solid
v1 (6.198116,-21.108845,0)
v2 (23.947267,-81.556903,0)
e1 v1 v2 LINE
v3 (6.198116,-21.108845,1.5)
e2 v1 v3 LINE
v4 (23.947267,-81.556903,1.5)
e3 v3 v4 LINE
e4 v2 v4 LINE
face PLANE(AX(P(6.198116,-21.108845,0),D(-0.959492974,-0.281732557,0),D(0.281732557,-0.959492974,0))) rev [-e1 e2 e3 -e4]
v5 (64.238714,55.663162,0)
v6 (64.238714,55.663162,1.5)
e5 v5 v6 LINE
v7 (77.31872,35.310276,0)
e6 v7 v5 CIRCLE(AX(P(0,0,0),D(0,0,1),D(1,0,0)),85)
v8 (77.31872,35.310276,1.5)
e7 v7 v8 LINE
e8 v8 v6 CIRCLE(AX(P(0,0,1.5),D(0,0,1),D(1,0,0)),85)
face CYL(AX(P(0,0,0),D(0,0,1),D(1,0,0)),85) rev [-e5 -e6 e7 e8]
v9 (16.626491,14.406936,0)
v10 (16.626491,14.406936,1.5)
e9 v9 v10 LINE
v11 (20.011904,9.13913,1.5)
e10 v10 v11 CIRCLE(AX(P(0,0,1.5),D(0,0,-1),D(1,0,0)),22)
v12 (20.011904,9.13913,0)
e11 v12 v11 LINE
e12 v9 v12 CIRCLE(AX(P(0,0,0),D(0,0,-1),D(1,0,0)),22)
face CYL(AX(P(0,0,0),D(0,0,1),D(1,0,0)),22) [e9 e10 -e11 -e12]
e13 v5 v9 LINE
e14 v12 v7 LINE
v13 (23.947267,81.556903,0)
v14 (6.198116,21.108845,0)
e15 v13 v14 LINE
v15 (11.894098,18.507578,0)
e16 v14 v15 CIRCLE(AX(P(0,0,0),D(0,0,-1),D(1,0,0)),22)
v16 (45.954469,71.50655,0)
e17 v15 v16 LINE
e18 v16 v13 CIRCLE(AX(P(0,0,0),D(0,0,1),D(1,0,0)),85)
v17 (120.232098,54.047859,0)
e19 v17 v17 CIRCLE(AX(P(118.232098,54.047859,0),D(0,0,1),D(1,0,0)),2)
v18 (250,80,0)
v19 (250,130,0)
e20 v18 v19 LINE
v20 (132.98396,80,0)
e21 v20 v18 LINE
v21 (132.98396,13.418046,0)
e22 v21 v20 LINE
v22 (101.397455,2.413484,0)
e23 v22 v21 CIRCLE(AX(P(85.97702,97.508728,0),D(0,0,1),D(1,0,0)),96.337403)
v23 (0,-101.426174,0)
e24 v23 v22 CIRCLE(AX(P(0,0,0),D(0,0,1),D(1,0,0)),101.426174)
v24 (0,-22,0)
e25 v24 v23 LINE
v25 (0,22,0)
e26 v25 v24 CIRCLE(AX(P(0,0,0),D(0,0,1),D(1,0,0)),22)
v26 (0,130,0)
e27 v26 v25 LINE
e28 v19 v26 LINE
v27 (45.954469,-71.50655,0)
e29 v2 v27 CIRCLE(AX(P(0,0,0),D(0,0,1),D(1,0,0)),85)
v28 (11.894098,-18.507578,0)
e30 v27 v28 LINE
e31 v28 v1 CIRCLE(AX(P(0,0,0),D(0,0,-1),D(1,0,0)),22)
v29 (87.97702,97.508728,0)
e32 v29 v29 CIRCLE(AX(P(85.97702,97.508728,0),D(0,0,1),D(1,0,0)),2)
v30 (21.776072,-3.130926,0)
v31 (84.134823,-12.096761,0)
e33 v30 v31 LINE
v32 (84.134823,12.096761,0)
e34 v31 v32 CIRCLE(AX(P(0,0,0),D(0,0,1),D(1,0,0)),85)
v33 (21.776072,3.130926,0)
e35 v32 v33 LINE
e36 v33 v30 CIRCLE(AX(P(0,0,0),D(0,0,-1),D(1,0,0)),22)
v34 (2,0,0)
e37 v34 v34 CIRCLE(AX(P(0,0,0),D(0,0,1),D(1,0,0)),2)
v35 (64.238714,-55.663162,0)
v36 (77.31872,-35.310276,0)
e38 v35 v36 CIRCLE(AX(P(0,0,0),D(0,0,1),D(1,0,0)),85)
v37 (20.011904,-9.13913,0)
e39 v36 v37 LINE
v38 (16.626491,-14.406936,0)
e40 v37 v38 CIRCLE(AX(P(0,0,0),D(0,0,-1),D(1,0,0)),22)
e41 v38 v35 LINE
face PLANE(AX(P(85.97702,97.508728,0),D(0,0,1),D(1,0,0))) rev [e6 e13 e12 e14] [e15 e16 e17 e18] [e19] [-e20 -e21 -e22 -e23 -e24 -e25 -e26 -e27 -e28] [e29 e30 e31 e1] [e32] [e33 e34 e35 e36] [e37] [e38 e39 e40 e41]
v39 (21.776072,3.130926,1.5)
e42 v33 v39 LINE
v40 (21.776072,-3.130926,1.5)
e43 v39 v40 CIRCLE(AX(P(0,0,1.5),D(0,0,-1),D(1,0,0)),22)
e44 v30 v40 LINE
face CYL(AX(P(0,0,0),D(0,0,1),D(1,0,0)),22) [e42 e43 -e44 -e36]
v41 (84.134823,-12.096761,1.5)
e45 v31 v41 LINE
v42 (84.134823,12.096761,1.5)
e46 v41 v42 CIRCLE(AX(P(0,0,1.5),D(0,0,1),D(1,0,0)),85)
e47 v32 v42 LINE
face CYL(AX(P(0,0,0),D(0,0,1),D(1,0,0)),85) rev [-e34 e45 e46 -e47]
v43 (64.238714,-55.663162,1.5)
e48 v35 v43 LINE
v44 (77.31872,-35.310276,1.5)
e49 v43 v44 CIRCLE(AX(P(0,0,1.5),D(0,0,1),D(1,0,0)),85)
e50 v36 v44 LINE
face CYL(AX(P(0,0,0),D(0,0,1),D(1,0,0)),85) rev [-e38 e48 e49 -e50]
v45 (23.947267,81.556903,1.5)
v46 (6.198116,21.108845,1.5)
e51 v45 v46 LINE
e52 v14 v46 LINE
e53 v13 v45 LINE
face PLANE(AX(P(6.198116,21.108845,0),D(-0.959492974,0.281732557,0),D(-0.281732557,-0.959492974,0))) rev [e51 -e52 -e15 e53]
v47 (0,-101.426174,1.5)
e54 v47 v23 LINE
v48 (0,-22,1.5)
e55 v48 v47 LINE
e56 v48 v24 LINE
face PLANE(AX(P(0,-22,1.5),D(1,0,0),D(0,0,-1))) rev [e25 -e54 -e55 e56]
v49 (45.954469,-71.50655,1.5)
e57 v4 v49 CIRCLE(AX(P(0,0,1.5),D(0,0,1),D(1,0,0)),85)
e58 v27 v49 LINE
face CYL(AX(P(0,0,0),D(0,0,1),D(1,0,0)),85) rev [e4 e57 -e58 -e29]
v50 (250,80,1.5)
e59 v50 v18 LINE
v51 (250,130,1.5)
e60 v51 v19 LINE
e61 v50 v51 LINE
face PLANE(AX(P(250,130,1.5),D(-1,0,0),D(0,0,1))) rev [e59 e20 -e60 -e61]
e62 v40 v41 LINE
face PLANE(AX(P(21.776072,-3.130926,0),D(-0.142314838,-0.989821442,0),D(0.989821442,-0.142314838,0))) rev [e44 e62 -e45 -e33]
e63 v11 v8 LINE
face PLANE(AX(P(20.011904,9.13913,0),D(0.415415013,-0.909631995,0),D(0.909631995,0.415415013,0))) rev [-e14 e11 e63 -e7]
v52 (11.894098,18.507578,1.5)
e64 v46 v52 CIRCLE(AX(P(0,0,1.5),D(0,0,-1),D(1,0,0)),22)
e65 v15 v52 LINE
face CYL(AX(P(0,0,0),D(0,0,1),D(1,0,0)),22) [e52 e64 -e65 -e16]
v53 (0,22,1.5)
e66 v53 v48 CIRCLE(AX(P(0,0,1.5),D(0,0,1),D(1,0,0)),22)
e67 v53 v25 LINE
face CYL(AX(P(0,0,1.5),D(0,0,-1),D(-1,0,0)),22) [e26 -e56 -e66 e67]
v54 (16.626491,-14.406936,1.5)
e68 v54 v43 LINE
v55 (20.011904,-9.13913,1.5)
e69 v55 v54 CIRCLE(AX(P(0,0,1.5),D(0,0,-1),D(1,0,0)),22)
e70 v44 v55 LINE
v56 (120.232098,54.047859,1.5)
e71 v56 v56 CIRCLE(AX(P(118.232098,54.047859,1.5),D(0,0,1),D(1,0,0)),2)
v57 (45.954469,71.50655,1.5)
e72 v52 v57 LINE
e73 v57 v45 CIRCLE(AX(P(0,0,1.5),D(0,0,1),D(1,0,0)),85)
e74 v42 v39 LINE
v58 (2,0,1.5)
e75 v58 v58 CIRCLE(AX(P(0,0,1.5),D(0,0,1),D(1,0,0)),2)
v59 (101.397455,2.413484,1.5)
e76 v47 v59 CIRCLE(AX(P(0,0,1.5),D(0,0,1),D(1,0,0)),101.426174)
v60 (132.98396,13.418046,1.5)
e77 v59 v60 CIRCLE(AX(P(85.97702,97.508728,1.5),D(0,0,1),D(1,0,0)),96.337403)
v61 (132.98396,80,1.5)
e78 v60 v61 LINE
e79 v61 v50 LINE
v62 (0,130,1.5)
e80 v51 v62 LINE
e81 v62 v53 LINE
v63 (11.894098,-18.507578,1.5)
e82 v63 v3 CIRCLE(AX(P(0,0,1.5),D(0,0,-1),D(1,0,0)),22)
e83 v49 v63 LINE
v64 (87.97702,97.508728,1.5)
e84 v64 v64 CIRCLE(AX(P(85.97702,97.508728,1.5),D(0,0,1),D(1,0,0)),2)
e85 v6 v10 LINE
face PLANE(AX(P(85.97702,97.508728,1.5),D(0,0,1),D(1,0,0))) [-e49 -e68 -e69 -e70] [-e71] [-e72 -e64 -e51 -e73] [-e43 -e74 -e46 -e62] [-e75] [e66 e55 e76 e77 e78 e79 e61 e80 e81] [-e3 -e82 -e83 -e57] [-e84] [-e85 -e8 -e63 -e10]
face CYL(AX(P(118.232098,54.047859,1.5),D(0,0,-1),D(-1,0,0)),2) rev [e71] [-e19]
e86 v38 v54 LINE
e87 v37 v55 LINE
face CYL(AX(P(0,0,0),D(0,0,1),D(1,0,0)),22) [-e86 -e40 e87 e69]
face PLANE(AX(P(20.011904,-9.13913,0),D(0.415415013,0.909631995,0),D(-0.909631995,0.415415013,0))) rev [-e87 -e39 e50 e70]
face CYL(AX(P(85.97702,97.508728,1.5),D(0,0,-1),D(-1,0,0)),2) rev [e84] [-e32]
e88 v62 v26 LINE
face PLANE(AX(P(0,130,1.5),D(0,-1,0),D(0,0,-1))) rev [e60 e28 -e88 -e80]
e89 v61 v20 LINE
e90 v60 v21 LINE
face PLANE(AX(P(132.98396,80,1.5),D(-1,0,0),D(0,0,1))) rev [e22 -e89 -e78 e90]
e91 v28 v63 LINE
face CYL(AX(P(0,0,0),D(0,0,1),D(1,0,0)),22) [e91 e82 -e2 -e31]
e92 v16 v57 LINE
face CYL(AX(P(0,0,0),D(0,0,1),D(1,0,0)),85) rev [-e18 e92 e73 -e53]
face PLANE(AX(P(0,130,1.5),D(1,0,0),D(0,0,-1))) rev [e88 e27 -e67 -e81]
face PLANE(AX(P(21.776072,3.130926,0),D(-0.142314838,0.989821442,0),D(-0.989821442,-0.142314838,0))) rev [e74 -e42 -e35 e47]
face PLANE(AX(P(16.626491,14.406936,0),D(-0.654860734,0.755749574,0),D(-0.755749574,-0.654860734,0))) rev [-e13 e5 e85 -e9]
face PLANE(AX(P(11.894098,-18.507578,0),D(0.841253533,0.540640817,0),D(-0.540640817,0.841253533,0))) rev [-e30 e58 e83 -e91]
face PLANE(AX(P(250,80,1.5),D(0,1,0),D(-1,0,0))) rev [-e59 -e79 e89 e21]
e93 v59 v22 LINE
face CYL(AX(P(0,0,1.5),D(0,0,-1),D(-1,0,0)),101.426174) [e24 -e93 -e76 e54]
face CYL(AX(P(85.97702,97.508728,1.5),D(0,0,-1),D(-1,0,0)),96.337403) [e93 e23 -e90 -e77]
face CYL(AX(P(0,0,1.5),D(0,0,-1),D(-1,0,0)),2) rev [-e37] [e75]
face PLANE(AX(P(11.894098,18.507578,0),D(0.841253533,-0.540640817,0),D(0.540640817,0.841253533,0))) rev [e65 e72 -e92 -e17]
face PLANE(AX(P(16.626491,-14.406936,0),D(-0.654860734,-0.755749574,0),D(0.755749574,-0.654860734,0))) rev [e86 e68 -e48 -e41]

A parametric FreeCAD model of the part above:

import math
import FreeCAD as App
import Part
import Sketcher

V = App.Vector

doc = App.newDocument("Part")
body = doc.addObject("PartDesign::Body", "Body")

sketch1 = body.newObject("Sketcher::SketchObject", "Sketch")
sketch1.AttachmentSupport = (doc.getObject("XY_Plane"), [""])
sketch1.MapMode = "FlatFace"
sketch1.addGeometry([
    Part.LineSegment(V(0, 130, 0), V(0, 22, 0)),
    Part.ArcOfCircle(Part.Circle(V(0, 0, 0), V(0, 0, 1), 22), math.radians(90), math.radians(270)),
    Part.LineSegment(V(0, -22, 0), V(0, -101.4, 0)),
    Part.ArcOfCircle(Part.Circle(V(0, 0, 0), V(0, 0, 1), 101.4), math.radians(-90), math.radians(1)),
    Part.ArcOfCircle(Part.Circle(V(86, 97.5, 0), V(0, 0, 1), 96.3), math.radians(-80.79), math.radians(-60.79)),
    Part.LineSegment(V(133, 13.4, 0), V(133, 80, 0)),
    Part.LineSegment(V(133, 80, 0), V(250, 80, 0)),
    Part.LineSegment(V(250, 80, 0), V(250, 130, 0)),
    Part.LineSegment(V(250, 130, 0), V(0, 130, 0)),
    Part.Circle(V(0, 0, 0), V(0, 0, 1), 2),
    Part.Circle(V(118.2, 54, 0), V(0, 0, 1), 2),
    Part.Circle(V(86, 97.5, 0), V(0, 0, 1), 2),
], False)
sketch1.addConstraint([
    Sketcher.Constraint("Coincident", 0, 2, 1, 1),
    Sketcher.Constraint("Coincident", 1, 2, 2, 1),
    Sketcher.Constraint("Coincident", 2, 2, 3, 1),
    Sketcher.Constraint("Coincident", 3, 2, 4, 1),
    Sketcher.Constraint("Coincident", 4, 2, 5, 1),
    Sketcher.Constraint("Coincident", 5, 2, 6, 1),
    Sketcher.Constraint("Coincident", 6, 2, 7, 1),
    Sketcher.Constraint("Coincident", 7, 2, 8, 1),
    Sketcher.Constraint("Coincident", 8, 2, 0, 1),
    Sketcher.Constraint("Vertical", 0),
    Sketcher.Constraint("Vertical", 2),
    Sketcher.Constraint("Vertical", 5),
    Sketcher.Constraint("Horizontal", 6),
    Sketcher.Constraint("Vertical", 7),
    Sketcher.Constraint("Horizontal", 8),
    Sketcher.Constraint("Coincident", 1, 3, -1, 1),
    Sketcher.Constraint("Coincident", 3, 3, -1, 1),
    Sketcher.Constraint("Coincident", 9, 3, -1, 1),
    Sketcher.Constraint("Coincident", 11, 3, 4, 3),
    Sketcher.Constraint("Equal", 9, 10),
    Sketcher.Constraint("Equal", 10, 11),
    Sketcher.Constraint("PointOnObject", 0, 2, -2),
    Sketcher.Constraint("PointOnObject", 1, 2, -2),
    Sketcher.Constraint("Diameter", 9, 4.0),
    Sketcher.Constraint("Radius", 1, 22.0),
    Sketcher.Constraint("DistanceX", 8, 2, 8, 1, 250.0),
    Sketcher.Constraint("DistanceY", 0, 2, 0, 1, 108.0),
    Sketcher.Constraint("DistanceY", 7, 1, 7, 2, 50.0),
    Sketcher.Constraint("Radius", 3, 101.426174),
    Sketcher.Constraint("Radius", 4, 96.337403),
    Sketcher.Constraint("DistanceX", 6, 1, 6, 2, 117.01604),
    Sketcher.Constraint("DistanceY", 5, 1, 5, 2, 66.581954),
    Sketcher.Constraint("DistanceX", -1, 1, 4, 3, 85.97702),
    Sketcher.Constraint("DistanceY", -1, 1, 10, 3, 54.047859),
    Sketcher.Constraint("DistanceX", -1, 1, 10, 3, 118.232098),
])
pad1 = body.newObject("PartDesign::Pad", "Pad")
pad1.Profile = sketch1
pad1.Length = 1.5

sketch2 = body.newObject("Sketcher::SketchObject", "Sketch001")
sketch2.AttachmentSupport = (doc.getObject("XY_Plane"), [""])
sketch2.MapMode = "FlatFace"
sketch2.AttachmentOffset = App.Placement(V(0, 0, 1.5), App.Rotation())
sketch2.addGeometry([
    Part.LineSegment(V(6, -21, 0), V(24, -82, 0)),
    Part.ArcOfCircle(Part.Circle(V(0, 0, 0), V(0, 0, 1), 85), math.radians(-73.64), math.radians(-57.27)),
    Part.LineSegment(V(46, -72, 0), V(12, -19, 0)),
    Part.ArcOfCircle(Part.Circle(V(0, 0, 0), V(0, 0, 1), 22), math.radians(-73.64), math.radians(-57.27)),
    Part.LineSegment(V(17, -14, 0), V(64, -56, 0)),
    Part.ArcOfCircle(Part.Circle(V(0, 0, 0), V(0, 0, 1), 85), math.radians(-40.91), math.radians(-24.55)),
    Part.LineSegment(V(77, -35, 0), V(20, -9, 0)),
    Part.ArcOfCircle(Part.Circle(V(0, 0, 0), V(0, 0, 1), 22), math.radians(-40.91), math.radians(-24.55)),
    Part.LineSegment(V(22, -3, 0), V(84, -12, 0)),
    Part.ArcOfCircle(Part.Circle(V(0, 0, 0), V(0, 0, 1), 85), math.radians(-8.18), math.radians(8.18)),
    Part.LineSegment(V(84, 12, 0), V(22, 3, 0)),
    Part.ArcOfCircle(Part.Circle(V(0, 0, 0), V(0, 0, 1), 22), math.radians(-8.18), math.radians(8.18)),
    Part.LineSegment(V(20, 9, 0), V(77, 35, 0)),
    Part.ArcOfCircle(Part.Circle(V(0, 0, 0), V(0, 0, 1), 85), math.radians(24.55), math.radians(40.91)),
    Part.LineSegment(V(64, 56, 0), V(17, 14, 0)),
    Part.ArcOfCircle(Part.Circle(V(0, 0, 0), V(0, 0, 1), 22), math.radians(24.55), math.radians(40.91)),
    Part.LineSegment(V(12, 19, 0), V(46, 72, 0)),
    Part.ArcOfCircle(Part.Circle(V(0, 0, 0), V(0, 0, 1), 85), math.radians(57.27), math.radians(73.64)),
    Part.LineSegment(V(24, 82, 0), V(6, 21, 0)),
    Part.ArcOfCircle(Part.Circle(V(0, 0, 0), V(0, 0, 1), 22), math.radians(57.27), math.radians(73.64)),
], False)
sketch2.addConstraint([
    Sketcher.Constraint("Coincident", 0, 2, 1, 1),
    Sketcher.Constraint("Coincident", 1, 2, 2, 1),
    Sketcher.Constraint("Coincident", 2, 2, 3, 2),
    Sketcher.Constraint("Coincident", 3, 1, 0, 1),
    Sketcher.Constraint("Coincident", 4, 2, 5, 1),
    Sketcher.Constraint("Coincident", 5, 2, 6, 1),
    Sketcher.Constraint("Coincident", 6, 2, 7, 2),
    Sketcher.Constraint("Coincident", 7, 1, 4, 1),
    Sketcher.Constraint("Coincident", 8, 2, 9, 1),
    Sketcher.Constraint("Coincident", 9, 2, 10, 1),
    Sketcher.Constraint("Coincident", 10, 2, 11, 2),
    Sketcher.Constraint("Coincident", 11, 1, 8, 1),
    Sketcher.Constraint("Coincident", 12, 2, 13, 1),
    Sketcher.Constraint("Coincident", 13, 2, 14, 1),
    Sketcher.Constraint("Coincident", 14, 2, 15, 2),
    Sketcher.Constraint("Coincident", 15, 1, 12, 1),
    Sketcher.Constraint("Coincident", 16, 2, 17, 1),
    Sketcher.Constraint("Coincident", 17, 2, 18, 1),
    Sketcher.Constraint("Coincident", 18, 2, 19, 2),
    Sketcher.Constraint("Coincident", 19, 1, 16, 1),
    Sketcher.Constraint("Coincident", 1, 3, -1, 1),
    Sketcher.Constraint("Coincident", 3, 3, -1, 1),
    Sketcher.Constraint("Coincident", 5, 3, -1, 1),
    Sketcher.Constraint("Coincident", 7, 3, -1, 1),
    Sketcher.Constraint("Coincident", 9, 3, -1, 1),
    Sketcher.Constraint("Coincident", 11, 3, -1, 1),
    Sketcher.Constraint("Coincident", 13, 3, -1, 1),
    Sketcher.Constraint("Coincident", 15, 3, -1, 1),
    Sketcher.Constraint("Coincident", 17, 3, -1, 1),
    Sketcher.Constraint("Coincident", 19, 3, -1, 1),
    Sketcher.Constraint("Equal", 1, 5),
    Sketcher.Constraint("Equal", 3, 7),
    Sketcher.Constraint("Equal", 5, 9),
    Sketcher.Constraint("Equal", 7, 11),
    Sketcher.Constraint("Equal", 9, 13),
    Sketcher.Constraint("Equal", 11, 15),
    Sketcher.Constraint("Equal", 13, 17),
    Sketcher.Constraint("Equal", 15, 19),
    Sketcher.Constraint("Vertical", 8, 2, 9, 2),
    Sketcher.Constraint("Vertical", 10, 2, 11, 1),
    Sketcher.Constraint("Vertical", 5, 2, 12, 2),
    Sketcher.Constraint("Vertical", 4, 2, 13, 2),
    Sketcher.Constraint("Vertical", 7, 1, 14, 2),
    Sketcher.Constraint("Vertical", 6, 2, 15, 1),
    Sketcher.Constraint("Vertical", 1, 2, 16, 2),
    Sketcher.Constraint("Vertical", 0, 2, 17, 2),
    Sketcher.Constraint("Vertical", 3, 1, 18, 2),
    Sketcher.Constraint("Vertical", 2, 2, 19, 1),
    Sketcher.Constraint("Radius", 1, 85.0),
    Sketcher.Constraint("Radius", 3, 22.0),
    Sketcher.Constraint("DistanceX", 15, 3, 2, 2, 11.894098),
    Sketcher.Constraint("DistanceY", 5, 2, 2, 2, 16.802698),
    Sketcher.Constraint("DistanceY", 4, 2, 8, 2, 43.566401),
    Sketcher.Constraint("DistanceX", -1, 1, 1, 2, 45.954469),
    Sketcher.Constraint("DistanceY", 6, 2, -1, 1, 9.13913),
    Sketcher.Constraint("DistanceX", -1, 1, 7, 1, 16.626491),
    Sketcher.Constraint("DistanceY", 8, 2, -1, 1, 12.096761),
    Sketcher.Constraint("DistanceX", -1, 1, 10, 2, 21.776072),
    Sketcher.Constraint("DistanceX", 3, 1, 2, 2, 5.695982),
    Sketcher.Constraint("DistanceY", 0, 2, 4, 2, 25.89374),
])
pocket1 = body.newObject("PartDesign::Pocket", "Pocket")
pocket1.Profile = sketch2
pocket1.Type = "ThroughAll"

doc.recompute()
